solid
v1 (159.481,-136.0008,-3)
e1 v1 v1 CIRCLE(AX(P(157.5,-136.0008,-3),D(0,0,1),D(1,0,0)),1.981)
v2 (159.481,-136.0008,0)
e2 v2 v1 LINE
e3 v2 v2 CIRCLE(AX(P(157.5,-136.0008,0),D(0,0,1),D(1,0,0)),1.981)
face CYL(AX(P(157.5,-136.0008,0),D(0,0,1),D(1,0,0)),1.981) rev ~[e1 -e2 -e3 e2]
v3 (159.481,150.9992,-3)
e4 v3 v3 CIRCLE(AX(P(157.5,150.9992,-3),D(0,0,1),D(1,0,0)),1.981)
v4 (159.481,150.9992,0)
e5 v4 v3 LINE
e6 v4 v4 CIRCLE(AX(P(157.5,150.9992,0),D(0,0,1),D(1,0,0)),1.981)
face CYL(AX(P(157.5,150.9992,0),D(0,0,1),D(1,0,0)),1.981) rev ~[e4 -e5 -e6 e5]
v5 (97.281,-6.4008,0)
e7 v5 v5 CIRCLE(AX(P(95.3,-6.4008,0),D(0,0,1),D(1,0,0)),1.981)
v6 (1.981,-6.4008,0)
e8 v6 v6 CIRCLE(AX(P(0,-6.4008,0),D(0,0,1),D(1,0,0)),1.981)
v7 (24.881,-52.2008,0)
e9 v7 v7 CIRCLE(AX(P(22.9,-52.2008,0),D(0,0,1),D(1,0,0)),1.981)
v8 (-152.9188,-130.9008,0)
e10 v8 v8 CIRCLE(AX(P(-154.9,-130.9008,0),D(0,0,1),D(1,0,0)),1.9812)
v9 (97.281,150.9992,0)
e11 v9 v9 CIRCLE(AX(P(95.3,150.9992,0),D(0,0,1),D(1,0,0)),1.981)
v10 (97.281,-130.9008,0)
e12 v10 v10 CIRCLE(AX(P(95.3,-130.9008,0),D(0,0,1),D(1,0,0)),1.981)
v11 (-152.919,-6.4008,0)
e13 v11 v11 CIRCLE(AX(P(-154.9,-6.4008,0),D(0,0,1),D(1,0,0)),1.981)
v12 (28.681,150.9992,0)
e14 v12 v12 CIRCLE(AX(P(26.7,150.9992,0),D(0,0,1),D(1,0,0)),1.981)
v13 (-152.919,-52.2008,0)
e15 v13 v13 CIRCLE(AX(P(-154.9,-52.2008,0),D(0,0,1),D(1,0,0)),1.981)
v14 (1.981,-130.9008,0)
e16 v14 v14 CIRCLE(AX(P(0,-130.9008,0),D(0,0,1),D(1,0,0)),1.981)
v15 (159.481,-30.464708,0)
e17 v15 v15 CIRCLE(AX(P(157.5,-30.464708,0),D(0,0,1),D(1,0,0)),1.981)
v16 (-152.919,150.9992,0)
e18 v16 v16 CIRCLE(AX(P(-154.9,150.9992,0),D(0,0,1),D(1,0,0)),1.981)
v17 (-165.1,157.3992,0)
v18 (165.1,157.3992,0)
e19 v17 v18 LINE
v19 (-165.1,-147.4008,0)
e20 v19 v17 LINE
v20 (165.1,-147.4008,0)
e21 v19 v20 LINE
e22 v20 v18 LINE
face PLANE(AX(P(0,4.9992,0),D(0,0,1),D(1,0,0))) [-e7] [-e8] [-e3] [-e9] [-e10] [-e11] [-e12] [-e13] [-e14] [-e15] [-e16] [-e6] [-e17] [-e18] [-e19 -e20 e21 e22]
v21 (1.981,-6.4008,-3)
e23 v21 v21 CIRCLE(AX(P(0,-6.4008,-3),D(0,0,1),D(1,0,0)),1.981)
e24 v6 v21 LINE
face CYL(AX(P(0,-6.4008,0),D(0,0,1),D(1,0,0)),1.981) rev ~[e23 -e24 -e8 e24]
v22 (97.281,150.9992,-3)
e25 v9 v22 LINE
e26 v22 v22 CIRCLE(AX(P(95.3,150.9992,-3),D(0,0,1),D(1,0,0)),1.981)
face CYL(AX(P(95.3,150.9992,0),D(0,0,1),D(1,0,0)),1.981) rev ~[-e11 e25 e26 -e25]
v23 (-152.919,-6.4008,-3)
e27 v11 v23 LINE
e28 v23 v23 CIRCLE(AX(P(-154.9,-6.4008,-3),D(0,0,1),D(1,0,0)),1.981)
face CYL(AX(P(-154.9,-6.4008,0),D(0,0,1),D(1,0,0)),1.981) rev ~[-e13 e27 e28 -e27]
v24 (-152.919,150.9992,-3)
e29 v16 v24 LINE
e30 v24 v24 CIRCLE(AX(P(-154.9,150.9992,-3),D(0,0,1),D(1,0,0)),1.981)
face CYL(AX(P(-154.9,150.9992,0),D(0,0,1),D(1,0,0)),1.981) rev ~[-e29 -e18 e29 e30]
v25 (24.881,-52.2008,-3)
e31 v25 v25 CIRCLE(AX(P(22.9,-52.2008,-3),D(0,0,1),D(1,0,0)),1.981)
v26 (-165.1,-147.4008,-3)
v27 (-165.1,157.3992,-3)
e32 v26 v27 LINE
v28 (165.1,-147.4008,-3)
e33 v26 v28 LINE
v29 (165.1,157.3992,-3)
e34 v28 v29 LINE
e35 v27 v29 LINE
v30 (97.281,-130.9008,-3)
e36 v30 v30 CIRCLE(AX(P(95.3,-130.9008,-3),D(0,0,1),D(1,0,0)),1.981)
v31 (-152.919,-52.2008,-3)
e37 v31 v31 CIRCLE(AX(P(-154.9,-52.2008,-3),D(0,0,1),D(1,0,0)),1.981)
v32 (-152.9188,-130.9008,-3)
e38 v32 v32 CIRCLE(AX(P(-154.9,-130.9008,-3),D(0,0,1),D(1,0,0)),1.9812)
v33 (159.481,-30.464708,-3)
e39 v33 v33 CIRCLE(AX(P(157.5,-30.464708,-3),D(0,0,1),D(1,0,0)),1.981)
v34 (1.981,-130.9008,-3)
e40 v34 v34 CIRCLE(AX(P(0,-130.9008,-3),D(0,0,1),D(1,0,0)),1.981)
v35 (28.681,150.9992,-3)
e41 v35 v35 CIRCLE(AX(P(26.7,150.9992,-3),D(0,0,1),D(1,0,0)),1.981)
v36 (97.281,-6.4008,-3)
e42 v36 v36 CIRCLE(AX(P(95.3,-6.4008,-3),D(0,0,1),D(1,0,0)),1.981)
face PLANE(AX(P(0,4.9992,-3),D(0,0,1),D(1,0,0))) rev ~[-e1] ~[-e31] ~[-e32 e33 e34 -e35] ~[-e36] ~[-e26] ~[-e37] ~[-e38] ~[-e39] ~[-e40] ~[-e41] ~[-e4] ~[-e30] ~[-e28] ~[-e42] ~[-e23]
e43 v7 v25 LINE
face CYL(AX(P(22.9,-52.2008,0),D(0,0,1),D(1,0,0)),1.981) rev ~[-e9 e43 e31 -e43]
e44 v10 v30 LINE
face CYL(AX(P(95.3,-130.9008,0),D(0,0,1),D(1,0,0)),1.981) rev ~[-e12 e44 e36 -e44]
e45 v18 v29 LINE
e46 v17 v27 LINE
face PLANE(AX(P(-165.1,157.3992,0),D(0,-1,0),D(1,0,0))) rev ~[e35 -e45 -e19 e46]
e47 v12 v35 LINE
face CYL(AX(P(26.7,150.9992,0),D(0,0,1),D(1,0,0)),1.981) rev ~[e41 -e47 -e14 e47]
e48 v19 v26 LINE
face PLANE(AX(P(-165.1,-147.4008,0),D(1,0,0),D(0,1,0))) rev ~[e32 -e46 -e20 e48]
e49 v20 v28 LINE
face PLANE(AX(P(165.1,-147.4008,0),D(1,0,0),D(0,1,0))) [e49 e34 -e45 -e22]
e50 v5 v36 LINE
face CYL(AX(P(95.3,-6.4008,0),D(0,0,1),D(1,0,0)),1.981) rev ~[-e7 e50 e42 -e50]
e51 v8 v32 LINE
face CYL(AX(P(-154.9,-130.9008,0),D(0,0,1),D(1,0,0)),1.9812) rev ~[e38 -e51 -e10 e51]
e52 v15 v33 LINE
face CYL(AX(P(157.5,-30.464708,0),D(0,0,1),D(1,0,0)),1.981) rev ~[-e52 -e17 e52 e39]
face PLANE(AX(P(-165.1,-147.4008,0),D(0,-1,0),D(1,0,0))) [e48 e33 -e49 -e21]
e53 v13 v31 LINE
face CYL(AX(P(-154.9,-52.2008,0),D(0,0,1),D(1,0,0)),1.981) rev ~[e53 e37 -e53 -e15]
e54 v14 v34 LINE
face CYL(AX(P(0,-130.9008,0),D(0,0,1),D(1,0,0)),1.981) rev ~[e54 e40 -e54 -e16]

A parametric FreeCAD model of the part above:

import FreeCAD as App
import Part
import Sketcher
from FreeCAD import Vector
Q = App.Units.Quantity

doc = App.newDocument("Part")
body = doc.addObject("PartDesign::Body", "Body")

# Sketch on XY plane
sketch1 = doc.addObject("Sketcher::SketchObject", "Sketch")
body.addObject(sketch1)
sketch1.AttachmentSupport = (doc.XY_Plane, [""])
sketch1.MapMode = "FlatFace"
sketch1.addGeometry([
    Part.LineSegment(Vector(-165.1, 157.3992, 0), Vector(-165.1, -147.4008, 0)),  # 0
    Part.LineSegment(Vector(-165.1, -147.4008, 0), Vector(165.1, -147.4008, 0)),  # 1
    Part.LineSegment(Vector(165.1, -147.4008, 0), Vector(165.1, 157.3992, 0)),  # 2
    Part.LineSegment(Vector(165.1, 157.3992, 0), Vector(-165.1, 157.3992, 0)),  # 3
    Part.Circle(Vector(-154.9, -130.9008, 0), Vector(0, 0, 1), 1.9812),  # 4
    Part.Circle(Vector(0, -130.9008, 0), Vector(0, 0, 1), 1.981),  # 5
    Part.Circle(Vector(-154.9, -52.2008, 0), Vector(0, 0, 1), 1.981),  # 6
    Part.Circle(Vector(-154.9, -6.4008, 0), Vector(0, 0, 1), 1.981),  # 7
    Part.Circle(Vector(0, -6.4008, 0), Vector(0, 0, 1), 1.981),  # 8
    Part.Circle(Vector(95.3, -130.9008, 0), Vector(0, 0, 1), 1.981),  # 9
    Part.Circle(Vector(157.5, -136.0008, 0), Vector(0, 0, 1), 1.981),  # 10
    Part.Circle(Vector(22.9, -52.2008, 0), Vector(0, 0, 1), 1.981),  # 11
    Part.Circle(Vector(157.5, -30.464708, 0), Vector(0, 0, 1), 1.981),  # 12
    Part.Circle(Vector(95.3, -6.4008, 0), Vector(0, 0, 1), 1.981),  # 13
    Part.Circle(Vector(-154.9, 150.9992, 0), Vector(0, 0, 1), 1.981),  # 14
    Part.Circle(Vector(26.7, 150.9992, 0), Vector(0, 0, 1), 1.981),  # 15
    Part.Circle(Vector(95.3, 150.9992, 0), Vector(0, 0, 1), 1.981),  # 16
    Part.Circle(Vector(157.5, 150.9992, 0), Vector(0, 0, 1), 1.981),  # 17
], False)
sketch1.addConstraint([
    Sketcher.Constraint("Coincident", 0, 2, 1, 1),
    Sketcher.Constraint("Coincident", 1, 2, 2, 1),
    Sketcher.Constraint("Coincident", 2, 2, 3, 1),
    Sketcher.Constraint("Coincident", 3, 2, 0, 1),
    Sketcher.Constraint("Vertical", 0),
    Sketcher.Constraint("Horizontal", 1),
    Sketcher.Constraint("Vertical", 2),
    Sketcher.Constraint("Horizontal", 3),
    Sketcher.Constraint("Equal", 5, 6),
    Sketcher.Constraint("Equal", 6, 7),
    Sketcher.Constraint("Equal", 7, 8),
    Sketcher.Constraint("Equal", 8, 9),
    Sketcher.Constraint("Equal", 9, 10),
    Sketcher.Constraint("Equal", 10, 11),
    Sketcher.Constraint("Equal", 11, 12),
    Sketcher.Constraint("Equal", 12, 13),
    Sketcher.Constraint("Equal", 13, 14),
    Sketcher.Constraint("Equal", 14, 15),
    Sketcher.Constraint("Equal", 15, 16),
    Sketcher.Constraint("Equal", 16, 17),
    Sketcher.Constraint("PointOnObject", 5, 3, -2),
    Sketcher.Constraint("PointOnObject", 8, 3, -2),
    Sketcher.Constraint("Horizontal", 4, 3, 5, 3),
    Sketcher.Constraint("Horizontal", 7, 3, 8, 3),
    Sketcher.Constraint("Horizontal", 5, 3, 9, 3),
    Sketcher.Constraint("Horizontal", 6, 3, 11, 3),
    Sketcher.Constraint("Horizontal", 8, 3, 13, 3),
    Sketcher.Constraint("Horizontal", 14, 3, 15, 3),
    Sketcher.Constraint("Horizontal", 15, 3, 16, 3),
    Sketcher.Constraint("Horizontal", 16, 3, 17, 3),
    Sketcher.Constraint("Vertical", 4, 3, 6, 3),
    Sketcher.Constraint("Vertical", 6, 3, 7, 3),
    Sketcher.Constraint("Vertical", 10, 3, 12, 3),
    Sketcher.Constraint("Vertical", 9, 3, 13, 3),
    Sketcher.Constraint("Vertical", 7, 3, 14, 3),
    Sketcher.Constraint("Vertical", 13, 3, 16, 3),
    Sketcher.Constraint("Vertical", 12, 3, 17, 3),
    Sketcher.Constraint("DistanceX", 1, 1, 1, 2, Q("13 in")),
    Sketcher.Constraint("DistanceY", 0, 2, 0, 1, Q("12 in")),
    Sketcher.Constraint("Diameter", 4, Q("0.156 in")),
    Sketcher.Constraint("DistanceX", 6, 3, 11, 3, Q("7 in")),
    Sketcher.Constraint("DistanceY", 6, 3, 14, 3, Q("8 in")),
    Sketcher.Constraint("DistanceX", 0, 2, -1, 1, Q("6.5 in")),
    Sketcher.Constraint("Diameter", 5, 3.962),
    Sketcher.Constraint("DistanceY", 7, 3, -1, 1, Q("0.252 in")),
    Sketcher.Constraint("DistanceX", 4, 3, -1, 1, 154.9),
    Sketcher.Constraint("DistanceY", 4, 3, -1, 1, 130.9008),
    Sketcher.Constraint("DistanceY", 6, 3, -1, 1, 52.2008),
    Sketcher.Constraint("DistanceX", -1, 1, 9, 3, 95.3),
    Sketcher.Constraint("DistanceX", -1, 1, 10, 3, 157.5),
    Sketcher.Constraint("DistanceY", 10, 3, -1, 1, 136.0008),
    Sketcher.Constraint("DistanceX", -1, 1, 15, 3, 26.7),
    Sketcher.Constraint("DistanceY", 0, 2, -1, 1, 147.4008),
    Sketcher.Constraint("DistanceY", 12, 3, -1, 1, 30.464708),
])
pad1 = doc.addObject("PartDesign::Pad", "Pad")
body.addObject(pad1)
pad1.Profile = sketch1
pad1.Length = 3
pad1.Reversed = True

doc.recompute()
